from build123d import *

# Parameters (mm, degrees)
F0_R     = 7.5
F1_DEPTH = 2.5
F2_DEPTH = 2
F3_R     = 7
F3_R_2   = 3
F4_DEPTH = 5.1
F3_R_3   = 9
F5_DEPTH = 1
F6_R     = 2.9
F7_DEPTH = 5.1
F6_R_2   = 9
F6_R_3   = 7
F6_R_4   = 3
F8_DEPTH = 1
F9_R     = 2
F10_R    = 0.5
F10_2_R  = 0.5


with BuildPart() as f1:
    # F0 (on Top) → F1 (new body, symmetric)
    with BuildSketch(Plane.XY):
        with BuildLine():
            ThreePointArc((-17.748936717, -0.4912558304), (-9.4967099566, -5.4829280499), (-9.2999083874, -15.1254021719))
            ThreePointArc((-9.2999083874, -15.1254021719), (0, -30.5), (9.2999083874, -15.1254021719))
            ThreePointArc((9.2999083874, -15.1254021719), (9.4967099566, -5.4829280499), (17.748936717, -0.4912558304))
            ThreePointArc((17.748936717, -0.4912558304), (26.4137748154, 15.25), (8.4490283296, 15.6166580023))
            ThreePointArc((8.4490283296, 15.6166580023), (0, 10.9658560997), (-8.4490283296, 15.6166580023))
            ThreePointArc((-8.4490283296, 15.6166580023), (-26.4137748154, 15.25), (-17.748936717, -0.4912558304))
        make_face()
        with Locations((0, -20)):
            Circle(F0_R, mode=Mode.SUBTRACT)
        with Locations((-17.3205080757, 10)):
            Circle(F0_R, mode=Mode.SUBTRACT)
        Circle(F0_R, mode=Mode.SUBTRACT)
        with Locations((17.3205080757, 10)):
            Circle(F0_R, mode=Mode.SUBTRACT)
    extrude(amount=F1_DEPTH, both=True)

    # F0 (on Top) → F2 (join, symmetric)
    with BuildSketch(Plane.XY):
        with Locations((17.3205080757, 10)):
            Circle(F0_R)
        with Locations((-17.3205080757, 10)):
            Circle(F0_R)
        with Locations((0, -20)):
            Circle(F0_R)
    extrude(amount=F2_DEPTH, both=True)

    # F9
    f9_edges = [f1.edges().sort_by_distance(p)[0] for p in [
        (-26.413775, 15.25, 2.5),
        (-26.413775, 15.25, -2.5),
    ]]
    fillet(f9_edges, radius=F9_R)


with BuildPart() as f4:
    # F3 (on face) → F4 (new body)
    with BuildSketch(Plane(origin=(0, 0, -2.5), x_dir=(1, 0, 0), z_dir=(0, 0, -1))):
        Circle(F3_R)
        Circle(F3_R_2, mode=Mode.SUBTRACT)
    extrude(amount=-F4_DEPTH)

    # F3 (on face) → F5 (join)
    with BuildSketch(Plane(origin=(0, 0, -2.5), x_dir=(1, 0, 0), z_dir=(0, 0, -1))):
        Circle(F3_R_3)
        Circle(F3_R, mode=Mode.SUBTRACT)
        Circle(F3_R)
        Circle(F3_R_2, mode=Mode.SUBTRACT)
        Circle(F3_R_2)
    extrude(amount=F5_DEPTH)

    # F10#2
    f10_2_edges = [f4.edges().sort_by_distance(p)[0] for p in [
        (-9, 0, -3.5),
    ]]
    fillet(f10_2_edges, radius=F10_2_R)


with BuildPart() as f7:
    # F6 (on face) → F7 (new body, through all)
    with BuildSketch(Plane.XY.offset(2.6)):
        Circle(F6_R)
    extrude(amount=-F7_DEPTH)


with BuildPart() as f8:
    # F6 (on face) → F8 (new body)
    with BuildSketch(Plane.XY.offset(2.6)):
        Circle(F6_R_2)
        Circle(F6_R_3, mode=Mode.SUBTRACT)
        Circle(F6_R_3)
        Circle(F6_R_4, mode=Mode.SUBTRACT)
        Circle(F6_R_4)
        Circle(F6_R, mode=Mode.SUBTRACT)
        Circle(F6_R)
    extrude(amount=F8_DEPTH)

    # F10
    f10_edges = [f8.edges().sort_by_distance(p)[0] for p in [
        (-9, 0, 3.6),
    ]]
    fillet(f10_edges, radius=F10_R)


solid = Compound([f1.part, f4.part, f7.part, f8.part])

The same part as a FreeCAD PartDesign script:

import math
import FreeCAD as App
import Part
import Sketcher
Q = App.Units.Quantity


def edges_at(feature, points):
    """Names of the edges that pass closest to the given points."""
    edges = feature.Shape.Edges
    near = lambda p: min(range(len(edges)), key=lambda i: edges[i].distToShape(Part.Vertex(*p))[0])
    return sorted({f"Edge{near(p) + 1}" for p in points})

doc = App.newDocument("Part")
body = doc.addObject("PartDesign::Body", "Body")

# Sketch on XY plane
sketch1 = body.newObject("Sketcher::SketchObject", "Sketch")
sketch1.AttachmentSupport = (doc.getObject("XY_Plane"), [""])
sketch1.MapMode = "FlatFace"
sketch1.addGeometry(Part.ArcOfCircle(Part.Circle(App.Vector(-18, -10, 0), App.Vector(0, 0, 1), 10), math.radians(-28), math.radians(88)), False)
sketch1.addGeometry(Part.ArcOfCircle(Part.Circle(App.Vector(0, -20, 0), App.Vector(0, 0, 1), 10), math.radians(152), math.radians(388)), False)
sketch1.addGeometry(Part.ArcOfCircle(Part.Circle(App.Vector(18, -10, 0), App.Vector(0, 0, 1), 10), math.radians(92), math.radians(208)), False)
sketch1.addGeometry(Part.ArcOfCircle(Part.Circle(App.Vector(17, 10, 0), App.Vector(0, 0, 1), 10), math.radians(-88), math.radians(148)), False)
sketch1.addGeometry(Part.ArcOfCircle(Part.Circle(App.Vector(0, 21, 0), App.Vector(0, 0, 1), 10), math.radians(-148), math.radians(-32)), False)
sketch1.addGeometry(Part.ArcOfCircle(Part.Circle(App.Vector(-17, 10, 0), App.Vector(0, 0, 1), 10), math.radians(32), math.radians(268)), False)
sketch1.addGeometry(Part.Circle(App.Vector(0, -20, 0), App.Vector(0, 0, 1), 8), False)
sketch1.addGeometry(Part.Circle(App.Vector(-17, 10, 0), App.Vector(0, 0, 1), 8), False)
sketch1.addGeometry(Part.Circle(App.Vector(0, 0, 0), App.Vector(0, 0, 1), 8), False)
sketch1.addGeometry(Part.Circle(App.Vector(17, 10, 0), App.Vector(0, 0, 1), 8), False)
sketch1.addConstraint(Sketcher.Constraint("Tangent", 0, 1, 1, 1))
sketch1.addConstraint(Sketcher.Constraint("Tangent", 1, 2, 2, 2))
sketch1.addConstraint(Sketcher.Constraint("Tangent", 2, 1, 3, 1))
sketch1.addConstraint(Sketcher.Constraint("Tangent", 3, 2, 4, 2))
sketch1.addConstraint(Sketcher.Constraint("Tangent", 4, 1, 5, 1))
sketch1.addConstraint(Sketcher.Constraint("Tangent", 5, 2, 0, 2))
sketch1.addConstraint(Sketcher.Constraint("Coincident", 8, 3, -1, 1))
sketch1.addConstraint(Sketcher.Constraint("Coincident", 6, 3, 1, 3))
sketch1.addConstraint(Sketcher.Constraint("Coincident", 7, 3, 5, 3))
sketch1.addConstraint(Sketcher.Constraint("Coincident", 9, 3, 3, 3))
sketch1.addConstraint(Sketcher.Constraint("Equal", 0, 2))
sketch1.addConstraint(Sketcher.Constraint("Equal", 1, 3))
sketch1.addConstraint(Sketcher.Constraint("Equal", 2, 4))
sketch1.addConstraint(Sketcher.Constraint("Equal", 3, 5))
sketch1.addConstraint(Sketcher.Constraint("Equal", 6, 7))
sketch1.addConstraint(Sketcher.Constraint("Equal", 7, 8))
sketch1.addConstraint(Sketcher.Constraint("Equal", 8, 9))
sketch1.addConstraint(Sketcher.Constraint("Symmetric", 0, 3, 2, 3, -2))
sketch1.addConstraint(Sketcher.Constraint("PointOnObject", 4, 3, -2))
sketch1.addConstraint(Sketcher.Constraint("Diameter", 6, Q("15 mm")))
sketch1.addConstraint(Sketcher.Constraint("Radius", 0, Q("10 mm")))
sketch1.addConstraint(Sketcher.Constraint("Radius", 1, Q("10.5 mm")))
sketch1.addConstraint(Sketcher.Constraint("DistanceY", 1, 3, -1, 1, Q("20 mm")))
sketch1.addConstraint(Sketcher.Constraint("DistanceY", -1, 1, 3, 3, Q("10 mm")))
sketch1.addConstraint(Sketcher.Constraint("DistanceX", 5, 3, 0, 1, Q("8.0206 mm")))
pad1 = body.newObject("PartDesign::Pad", "Pad")
pad1.Profile = sketch1
pad1.Length = 5
pad1.Midplane = True

# Sketch on XY plane
sketch2 = body.newObject("Sketcher::SketchObject", "Sketch001")
sketch2.AttachmentSupport = (doc.getObject("XY_Plane"), [""])
sketch2.MapMode = "FlatFace"
sketch2.addGeometry(Part.Circle(App.Vector(17, 10, 0), App.Vector(0, 0, 1), 8), False)
sketch2.addGeometry(Part.Circle(App.Vector(-17, 10, 0), App.Vector(0, 0, 1), 8), False)
sketch2.addGeometry(Part.Circle(App.Vector(0, -20, 0), App.Vector(0, 0, 1), 8), False)
sketch2.addConstraint(Sketcher.Constraint("Equal", 0, 1))
sketch2.addConstraint(Sketcher.Constraint("Equal", 1, 2))
sketch2.addConstraint(Sketcher.Constraint("Symmetric", 0, 3, 1, 3, -2))
sketch2.addConstraint(Sketcher.Constraint("PointOnObject", 2, 3, -2))
sketch2.addConstraint(Sketcher.Constraint("Diameter", 0, Q("15 mm")))
sketch2.addConstraint(Sketcher.Constraint("DistanceY", -1, 1, 0, 3, Q("10 mm")))
sketch2.addConstraint(Sketcher.Constraint("DistanceY", 2, 3, -1, 1, Q("20 mm")))
sketch2.addConstraint(Sketcher.Constraint("DistanceX", -1, 1, 0, 3, Q("17.320508 mm")))
pad2 = body.newObject("PartDesign::Pad", "Pad001")
pad2.Profile = sketch2
pad2.Length = 4
pad2.Midplane = True
doc.recompute()

fillet = body.newObject("PartDesign::Fillet", "Fillet")
fillet.Base = (pad2, edges_at(pad2, [(-26.414, 15.25, 2.5), (-26.414, 15.25, -2.5)]))
fillet.Radius = 2
body2 = doc.addObject("PartDesign::Body", "Body001")

# Sketch on XY plane
sketch3 = body2.newObject("Sketcher::SketchObject", "Sketch002")
sketch3.AttachmentSupport = (doc.getObject("XY_Plane001"), [""])
sketch3.MapMode = "FlatFace"
sketch3.AttachmentOffset = App.Placement(App.Vector(0, 0, -2.5), App.Rotation())
sketch3.addGeometry(Part.Circle(App.Vector(0, 0, 0), App.Vector(0, 0, 1), 7), False)
sketch3.addGeometry(Part.Circle(App.Vector(0, 0, 0), App.Vector(0, 0, 1), 3), False)
sketch3.addConstraint(Sketcher.Constraint("Coincident", 0, 3, -1, 1))
sketch3.addConstraint(Sketcher.Constraint("Coincident", 1, 3, -1, 1))
sketch3.addConstraint(Sketcher.Constraint("Diameter", 0, Q("14 mm")))
sketch3.addConstraint(Sketcher.Constraint("Diameter", 1, Q("6 mm")))
pad3 = body2.newObject("PartDesign::Pad", "Pad002")
pad3.Profile = sketch3
pad3.Length = 5.1

# Sketch on XY plane
sketch4 = body2.newObject("Sketcher::SketchObject", "Sketch003")
sketch4.AttachmentSupport = (doc.getObject("XY_Plane001"), [""])
sketch4.MapMode = "FlatFace"
sketch4.AttachmentOffset = App.Placement(App.Vector(0, 0, -2.5), App.Rotation())
sketch4.addGeometry(Part.Circle(App.Vector(0, 0, 0), App.Vector(0, 0, 1), 9), False)
sketch4.addConstraint(Sketcher.Constraint("Coincident", 0, 3, -1, 1))
sketch4.addConstraint(Sketcher.Constraint("Diameter", 0, Q("18 mm")))
pad4 = body2.newObject("PartDesign::Pad", "Pad003")
pad4.Profile = sketch4
pad4.Length = 1
pad4.Reversed = True
doc.recompute()

fillet2 = body2.newObject("PartDesign::Fillet", "Fillet001")
fillet2.Base = (pad4, edges_at(pad4, [(-9, 0, -3.5)]))
fillet2.Radius = 0.5
body3 = doc.addObject("PartDesign::Body", "Body002")

# Sketch on XY plane
sketch5 = body3.newObject("Sketcher::SketchObject", "Sketch004")
sketch5.AttachmentSupport = (doc.getObject("XY_Plane002"), [""])
sketch5.MapMode = "FlatFace"
sketch5.AttachmentOffset = App.Placement(App.Vector(0, 0, 2.6), App.Rotation())
sketch5.addGeometry(Part.Circle(App.Vector(0, 0, 0), App.Vector(0, 0, 1), 2.9), False)
sketch5.addConstraint(Sketcher.Constraint("Coincident", 0, 3, -1, 1))
sketch5.addConstraint(Sketcher.Constraint("Diameter", 0, Q("5.8 mm")))
pad5 = body3.newObject("PartDesign::Pad", "Pad004")
pad5.Profile = sketch5
pad5.Length = 5.1
pad5.Reversed = True
body4 = doc.addObject("PartDesign::Body", "Body003")

# Sketch on XY plane
sketch6 = body4.newObject("Sketcher::SketchObject", "Sketch005")
sketch6.AttachmentSupport = (doc.getObject("XY_Plane003"), [""])
sketch6.MapMode = "FlatFace"
sketch6.AttachmentOffset = App.Placement(App.Vector(0, 0, 2.6), App.Rotation())
sketch6.addGeometry(Part.Circle(App.Vector(0, 0, 0), App.Vector(0, 0, 1), 9), False)
sketch6.addConstraint(Sketcher.Constraint("Coincident", 0, 3, -1, 1))
sketch6.addConstraint(Sketcher.Constraint("Diameter", 0, Q("18 mm")))
pad6 = body4.newObject("PartDesign::Pad", "Pad005")
pad6.Profile = sketch6
pad6.Length = 1
doc.recompute()

fillet3 = body4.newObject("PartDesign::Fillet", "Fillet002")
fillet3.Base = (pad6, edges_at(pad6, [(-9, 0, 3.6)]))
fillet3.Radius = 0.5

doc.recompute()
